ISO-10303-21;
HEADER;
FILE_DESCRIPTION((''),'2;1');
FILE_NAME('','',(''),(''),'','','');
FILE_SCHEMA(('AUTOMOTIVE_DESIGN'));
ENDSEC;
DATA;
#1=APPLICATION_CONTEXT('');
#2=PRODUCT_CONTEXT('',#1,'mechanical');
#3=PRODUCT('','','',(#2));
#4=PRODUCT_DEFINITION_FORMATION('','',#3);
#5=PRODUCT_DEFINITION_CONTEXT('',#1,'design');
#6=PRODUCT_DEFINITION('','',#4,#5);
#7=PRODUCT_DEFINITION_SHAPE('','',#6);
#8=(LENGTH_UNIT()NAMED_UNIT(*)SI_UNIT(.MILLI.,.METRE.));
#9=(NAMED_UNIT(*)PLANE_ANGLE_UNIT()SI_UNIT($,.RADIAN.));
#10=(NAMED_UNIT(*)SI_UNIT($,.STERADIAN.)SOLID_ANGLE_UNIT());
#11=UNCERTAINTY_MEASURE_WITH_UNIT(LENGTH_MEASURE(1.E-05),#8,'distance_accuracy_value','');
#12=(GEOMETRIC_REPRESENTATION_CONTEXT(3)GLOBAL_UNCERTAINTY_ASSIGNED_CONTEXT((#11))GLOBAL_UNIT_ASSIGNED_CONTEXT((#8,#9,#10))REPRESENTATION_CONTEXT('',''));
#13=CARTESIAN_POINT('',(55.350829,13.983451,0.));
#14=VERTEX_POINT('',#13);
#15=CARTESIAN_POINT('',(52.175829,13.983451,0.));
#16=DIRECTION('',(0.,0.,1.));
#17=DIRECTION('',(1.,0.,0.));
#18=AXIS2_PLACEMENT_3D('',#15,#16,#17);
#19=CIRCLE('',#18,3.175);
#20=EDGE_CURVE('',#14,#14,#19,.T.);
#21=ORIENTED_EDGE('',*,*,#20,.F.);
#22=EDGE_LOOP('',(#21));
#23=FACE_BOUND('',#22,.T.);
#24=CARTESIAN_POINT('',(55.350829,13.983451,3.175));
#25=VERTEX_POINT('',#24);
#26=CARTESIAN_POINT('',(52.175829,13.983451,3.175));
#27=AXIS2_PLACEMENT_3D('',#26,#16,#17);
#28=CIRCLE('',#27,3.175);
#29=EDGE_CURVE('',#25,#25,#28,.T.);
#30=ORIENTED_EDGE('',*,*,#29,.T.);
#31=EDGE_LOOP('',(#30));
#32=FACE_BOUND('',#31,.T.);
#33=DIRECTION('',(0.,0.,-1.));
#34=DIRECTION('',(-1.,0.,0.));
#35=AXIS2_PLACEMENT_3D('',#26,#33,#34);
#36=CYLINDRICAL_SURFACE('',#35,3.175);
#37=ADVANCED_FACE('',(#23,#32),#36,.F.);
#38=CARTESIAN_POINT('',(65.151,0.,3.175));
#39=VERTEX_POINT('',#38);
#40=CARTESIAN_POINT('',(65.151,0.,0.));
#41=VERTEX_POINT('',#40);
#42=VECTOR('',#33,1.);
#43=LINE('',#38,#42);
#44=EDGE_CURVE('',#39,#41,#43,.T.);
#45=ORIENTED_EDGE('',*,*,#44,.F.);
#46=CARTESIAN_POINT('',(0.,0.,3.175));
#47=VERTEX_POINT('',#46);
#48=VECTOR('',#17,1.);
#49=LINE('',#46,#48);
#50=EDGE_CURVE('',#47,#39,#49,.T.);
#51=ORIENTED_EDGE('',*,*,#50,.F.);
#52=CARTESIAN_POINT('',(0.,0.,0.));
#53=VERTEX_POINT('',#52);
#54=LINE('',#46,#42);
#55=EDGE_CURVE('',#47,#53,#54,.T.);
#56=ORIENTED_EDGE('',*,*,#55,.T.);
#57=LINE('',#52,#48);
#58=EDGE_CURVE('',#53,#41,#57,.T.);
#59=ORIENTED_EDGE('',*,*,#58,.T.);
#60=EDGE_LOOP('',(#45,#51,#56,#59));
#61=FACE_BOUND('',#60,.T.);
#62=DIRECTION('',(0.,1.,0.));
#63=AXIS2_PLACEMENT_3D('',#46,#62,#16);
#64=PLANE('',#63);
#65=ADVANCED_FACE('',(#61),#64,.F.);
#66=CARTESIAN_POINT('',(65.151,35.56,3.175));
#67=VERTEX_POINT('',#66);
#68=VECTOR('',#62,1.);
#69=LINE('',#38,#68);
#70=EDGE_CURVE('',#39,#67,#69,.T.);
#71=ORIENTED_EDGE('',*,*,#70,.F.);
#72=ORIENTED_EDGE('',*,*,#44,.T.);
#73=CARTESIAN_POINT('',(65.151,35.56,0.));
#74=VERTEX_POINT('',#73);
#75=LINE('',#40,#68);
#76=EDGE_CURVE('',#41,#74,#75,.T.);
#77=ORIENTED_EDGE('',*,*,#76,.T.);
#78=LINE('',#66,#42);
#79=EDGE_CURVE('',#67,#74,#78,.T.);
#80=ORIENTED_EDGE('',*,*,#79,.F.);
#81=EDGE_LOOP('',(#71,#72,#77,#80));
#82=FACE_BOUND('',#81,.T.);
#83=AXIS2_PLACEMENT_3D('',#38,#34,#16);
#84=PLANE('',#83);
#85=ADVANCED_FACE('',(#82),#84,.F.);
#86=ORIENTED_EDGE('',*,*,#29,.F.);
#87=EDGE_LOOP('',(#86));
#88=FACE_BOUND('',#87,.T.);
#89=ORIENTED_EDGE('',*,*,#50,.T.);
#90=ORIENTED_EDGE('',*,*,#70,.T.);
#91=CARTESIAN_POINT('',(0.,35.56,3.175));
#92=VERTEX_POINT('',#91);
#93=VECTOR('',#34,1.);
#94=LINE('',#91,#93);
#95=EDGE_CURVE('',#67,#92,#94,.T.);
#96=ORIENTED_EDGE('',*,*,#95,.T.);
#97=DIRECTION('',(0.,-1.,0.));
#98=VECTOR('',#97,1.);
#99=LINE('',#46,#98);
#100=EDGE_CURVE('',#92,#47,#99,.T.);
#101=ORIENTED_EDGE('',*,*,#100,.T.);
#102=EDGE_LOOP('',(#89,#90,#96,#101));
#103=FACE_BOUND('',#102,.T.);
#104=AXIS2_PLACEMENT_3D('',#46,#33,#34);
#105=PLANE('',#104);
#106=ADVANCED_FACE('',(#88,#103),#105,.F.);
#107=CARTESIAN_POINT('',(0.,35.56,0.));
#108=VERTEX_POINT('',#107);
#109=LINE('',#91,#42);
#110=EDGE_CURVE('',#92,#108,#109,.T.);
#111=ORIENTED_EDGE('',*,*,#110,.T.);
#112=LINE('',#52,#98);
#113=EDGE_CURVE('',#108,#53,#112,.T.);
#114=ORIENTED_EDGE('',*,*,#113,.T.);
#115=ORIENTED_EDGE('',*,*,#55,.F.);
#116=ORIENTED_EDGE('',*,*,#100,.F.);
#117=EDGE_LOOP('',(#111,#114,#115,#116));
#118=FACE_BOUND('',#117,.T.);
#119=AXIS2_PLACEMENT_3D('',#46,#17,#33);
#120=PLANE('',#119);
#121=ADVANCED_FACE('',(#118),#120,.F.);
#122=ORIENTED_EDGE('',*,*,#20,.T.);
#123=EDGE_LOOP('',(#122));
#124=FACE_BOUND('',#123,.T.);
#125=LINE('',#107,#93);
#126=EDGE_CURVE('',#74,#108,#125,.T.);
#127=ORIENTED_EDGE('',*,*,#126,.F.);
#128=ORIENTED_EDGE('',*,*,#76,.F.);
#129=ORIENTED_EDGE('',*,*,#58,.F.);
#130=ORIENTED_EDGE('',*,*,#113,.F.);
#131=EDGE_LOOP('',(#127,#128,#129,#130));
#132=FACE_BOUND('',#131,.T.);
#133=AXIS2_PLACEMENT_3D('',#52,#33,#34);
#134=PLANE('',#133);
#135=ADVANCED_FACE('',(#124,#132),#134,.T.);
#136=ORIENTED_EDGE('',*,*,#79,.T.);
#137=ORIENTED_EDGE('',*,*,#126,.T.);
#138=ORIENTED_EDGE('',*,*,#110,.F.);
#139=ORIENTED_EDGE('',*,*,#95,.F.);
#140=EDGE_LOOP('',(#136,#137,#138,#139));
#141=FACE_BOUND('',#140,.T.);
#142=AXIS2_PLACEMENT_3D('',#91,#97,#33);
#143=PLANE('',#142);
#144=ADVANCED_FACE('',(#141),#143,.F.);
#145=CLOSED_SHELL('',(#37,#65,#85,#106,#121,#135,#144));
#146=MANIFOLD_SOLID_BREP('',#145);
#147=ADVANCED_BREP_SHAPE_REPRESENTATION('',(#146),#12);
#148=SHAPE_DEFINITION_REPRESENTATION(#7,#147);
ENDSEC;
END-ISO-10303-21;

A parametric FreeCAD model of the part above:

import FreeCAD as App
import Part
import Sketcher
from FreeCAD import Vector
Q = App.Units.Quantity


def add_polygon(sketch, points):
    """Adds a closed chain of lines whose ends are joined by coincident constraints."""
    first, n = sketch.GeometryCount, len(points)
    for a, b in zip(points, points[1:] + points[:1]):
        sketch.addGeometry(Part.LineSegment(App.Vector(*a, 0), App.Vector(*b, 0)), False)
    for i in range(n):
        sketch.addConstraint(Sketcher.Constraint("Coincident", first + i, 2, first + (i + 1) % n, 1))

doc = App.newDocument("Part")
body = doc.addObject("PartDesign::Body", "Body")

# Sketch on XY plane
sketch1 = body.newObject("Sketcher::SketchObject", "Sketch")
sketch1.AttachmentSupport = (doc.getObject("XY_Plane"), [""])
sketch1.MapMode = "FlatFace"
add_polygon(sketch1, [(0, 35.56), (0, 0), (65.151, 0), (65.151, 35.56)])  # lines 0-3
sketch1.addGeometry(Part.Circle(Vector(52.175829, 13.983451, 0), Vector(0, 0, 1), 3.175), False)  # 4
sketch1.addConstraint([
    Sketcher.Constraint("Vertical", 0),
    Sketcher.Constraint("Horizontal", 1),
    Sketcher.Constraint("Vertical", 2),
    Sketcher.Constraint("Horizontal", 3),
    Sketcher.Constraint("Coincident", 0, 2, -1, 1),
    Sketcher.Constraint("Diameter", 4, Q("0.25 in")),
    Sketcher.Constraint("DistanceY", 0, 2, 0, 1, Q("1.4 in")),
    Sketcher.Constraint("DistanceX", 1, 1, 1, 2, Q("2.565 in")),
    Sketcher.Constraint("DistanceX", -1, 1, 4, 3, Q("52.175829 mm")),
    Sketcher.Constraint("DistanceY", -1, 1, 4, 3, Q("13.983451 mm")),
])
pad1 = body.newObject("PartDesign::Pad", "Pad")
pad1.Profile = sketch1
pad1.Length = Q("0.125 in")

doc.recompute()
